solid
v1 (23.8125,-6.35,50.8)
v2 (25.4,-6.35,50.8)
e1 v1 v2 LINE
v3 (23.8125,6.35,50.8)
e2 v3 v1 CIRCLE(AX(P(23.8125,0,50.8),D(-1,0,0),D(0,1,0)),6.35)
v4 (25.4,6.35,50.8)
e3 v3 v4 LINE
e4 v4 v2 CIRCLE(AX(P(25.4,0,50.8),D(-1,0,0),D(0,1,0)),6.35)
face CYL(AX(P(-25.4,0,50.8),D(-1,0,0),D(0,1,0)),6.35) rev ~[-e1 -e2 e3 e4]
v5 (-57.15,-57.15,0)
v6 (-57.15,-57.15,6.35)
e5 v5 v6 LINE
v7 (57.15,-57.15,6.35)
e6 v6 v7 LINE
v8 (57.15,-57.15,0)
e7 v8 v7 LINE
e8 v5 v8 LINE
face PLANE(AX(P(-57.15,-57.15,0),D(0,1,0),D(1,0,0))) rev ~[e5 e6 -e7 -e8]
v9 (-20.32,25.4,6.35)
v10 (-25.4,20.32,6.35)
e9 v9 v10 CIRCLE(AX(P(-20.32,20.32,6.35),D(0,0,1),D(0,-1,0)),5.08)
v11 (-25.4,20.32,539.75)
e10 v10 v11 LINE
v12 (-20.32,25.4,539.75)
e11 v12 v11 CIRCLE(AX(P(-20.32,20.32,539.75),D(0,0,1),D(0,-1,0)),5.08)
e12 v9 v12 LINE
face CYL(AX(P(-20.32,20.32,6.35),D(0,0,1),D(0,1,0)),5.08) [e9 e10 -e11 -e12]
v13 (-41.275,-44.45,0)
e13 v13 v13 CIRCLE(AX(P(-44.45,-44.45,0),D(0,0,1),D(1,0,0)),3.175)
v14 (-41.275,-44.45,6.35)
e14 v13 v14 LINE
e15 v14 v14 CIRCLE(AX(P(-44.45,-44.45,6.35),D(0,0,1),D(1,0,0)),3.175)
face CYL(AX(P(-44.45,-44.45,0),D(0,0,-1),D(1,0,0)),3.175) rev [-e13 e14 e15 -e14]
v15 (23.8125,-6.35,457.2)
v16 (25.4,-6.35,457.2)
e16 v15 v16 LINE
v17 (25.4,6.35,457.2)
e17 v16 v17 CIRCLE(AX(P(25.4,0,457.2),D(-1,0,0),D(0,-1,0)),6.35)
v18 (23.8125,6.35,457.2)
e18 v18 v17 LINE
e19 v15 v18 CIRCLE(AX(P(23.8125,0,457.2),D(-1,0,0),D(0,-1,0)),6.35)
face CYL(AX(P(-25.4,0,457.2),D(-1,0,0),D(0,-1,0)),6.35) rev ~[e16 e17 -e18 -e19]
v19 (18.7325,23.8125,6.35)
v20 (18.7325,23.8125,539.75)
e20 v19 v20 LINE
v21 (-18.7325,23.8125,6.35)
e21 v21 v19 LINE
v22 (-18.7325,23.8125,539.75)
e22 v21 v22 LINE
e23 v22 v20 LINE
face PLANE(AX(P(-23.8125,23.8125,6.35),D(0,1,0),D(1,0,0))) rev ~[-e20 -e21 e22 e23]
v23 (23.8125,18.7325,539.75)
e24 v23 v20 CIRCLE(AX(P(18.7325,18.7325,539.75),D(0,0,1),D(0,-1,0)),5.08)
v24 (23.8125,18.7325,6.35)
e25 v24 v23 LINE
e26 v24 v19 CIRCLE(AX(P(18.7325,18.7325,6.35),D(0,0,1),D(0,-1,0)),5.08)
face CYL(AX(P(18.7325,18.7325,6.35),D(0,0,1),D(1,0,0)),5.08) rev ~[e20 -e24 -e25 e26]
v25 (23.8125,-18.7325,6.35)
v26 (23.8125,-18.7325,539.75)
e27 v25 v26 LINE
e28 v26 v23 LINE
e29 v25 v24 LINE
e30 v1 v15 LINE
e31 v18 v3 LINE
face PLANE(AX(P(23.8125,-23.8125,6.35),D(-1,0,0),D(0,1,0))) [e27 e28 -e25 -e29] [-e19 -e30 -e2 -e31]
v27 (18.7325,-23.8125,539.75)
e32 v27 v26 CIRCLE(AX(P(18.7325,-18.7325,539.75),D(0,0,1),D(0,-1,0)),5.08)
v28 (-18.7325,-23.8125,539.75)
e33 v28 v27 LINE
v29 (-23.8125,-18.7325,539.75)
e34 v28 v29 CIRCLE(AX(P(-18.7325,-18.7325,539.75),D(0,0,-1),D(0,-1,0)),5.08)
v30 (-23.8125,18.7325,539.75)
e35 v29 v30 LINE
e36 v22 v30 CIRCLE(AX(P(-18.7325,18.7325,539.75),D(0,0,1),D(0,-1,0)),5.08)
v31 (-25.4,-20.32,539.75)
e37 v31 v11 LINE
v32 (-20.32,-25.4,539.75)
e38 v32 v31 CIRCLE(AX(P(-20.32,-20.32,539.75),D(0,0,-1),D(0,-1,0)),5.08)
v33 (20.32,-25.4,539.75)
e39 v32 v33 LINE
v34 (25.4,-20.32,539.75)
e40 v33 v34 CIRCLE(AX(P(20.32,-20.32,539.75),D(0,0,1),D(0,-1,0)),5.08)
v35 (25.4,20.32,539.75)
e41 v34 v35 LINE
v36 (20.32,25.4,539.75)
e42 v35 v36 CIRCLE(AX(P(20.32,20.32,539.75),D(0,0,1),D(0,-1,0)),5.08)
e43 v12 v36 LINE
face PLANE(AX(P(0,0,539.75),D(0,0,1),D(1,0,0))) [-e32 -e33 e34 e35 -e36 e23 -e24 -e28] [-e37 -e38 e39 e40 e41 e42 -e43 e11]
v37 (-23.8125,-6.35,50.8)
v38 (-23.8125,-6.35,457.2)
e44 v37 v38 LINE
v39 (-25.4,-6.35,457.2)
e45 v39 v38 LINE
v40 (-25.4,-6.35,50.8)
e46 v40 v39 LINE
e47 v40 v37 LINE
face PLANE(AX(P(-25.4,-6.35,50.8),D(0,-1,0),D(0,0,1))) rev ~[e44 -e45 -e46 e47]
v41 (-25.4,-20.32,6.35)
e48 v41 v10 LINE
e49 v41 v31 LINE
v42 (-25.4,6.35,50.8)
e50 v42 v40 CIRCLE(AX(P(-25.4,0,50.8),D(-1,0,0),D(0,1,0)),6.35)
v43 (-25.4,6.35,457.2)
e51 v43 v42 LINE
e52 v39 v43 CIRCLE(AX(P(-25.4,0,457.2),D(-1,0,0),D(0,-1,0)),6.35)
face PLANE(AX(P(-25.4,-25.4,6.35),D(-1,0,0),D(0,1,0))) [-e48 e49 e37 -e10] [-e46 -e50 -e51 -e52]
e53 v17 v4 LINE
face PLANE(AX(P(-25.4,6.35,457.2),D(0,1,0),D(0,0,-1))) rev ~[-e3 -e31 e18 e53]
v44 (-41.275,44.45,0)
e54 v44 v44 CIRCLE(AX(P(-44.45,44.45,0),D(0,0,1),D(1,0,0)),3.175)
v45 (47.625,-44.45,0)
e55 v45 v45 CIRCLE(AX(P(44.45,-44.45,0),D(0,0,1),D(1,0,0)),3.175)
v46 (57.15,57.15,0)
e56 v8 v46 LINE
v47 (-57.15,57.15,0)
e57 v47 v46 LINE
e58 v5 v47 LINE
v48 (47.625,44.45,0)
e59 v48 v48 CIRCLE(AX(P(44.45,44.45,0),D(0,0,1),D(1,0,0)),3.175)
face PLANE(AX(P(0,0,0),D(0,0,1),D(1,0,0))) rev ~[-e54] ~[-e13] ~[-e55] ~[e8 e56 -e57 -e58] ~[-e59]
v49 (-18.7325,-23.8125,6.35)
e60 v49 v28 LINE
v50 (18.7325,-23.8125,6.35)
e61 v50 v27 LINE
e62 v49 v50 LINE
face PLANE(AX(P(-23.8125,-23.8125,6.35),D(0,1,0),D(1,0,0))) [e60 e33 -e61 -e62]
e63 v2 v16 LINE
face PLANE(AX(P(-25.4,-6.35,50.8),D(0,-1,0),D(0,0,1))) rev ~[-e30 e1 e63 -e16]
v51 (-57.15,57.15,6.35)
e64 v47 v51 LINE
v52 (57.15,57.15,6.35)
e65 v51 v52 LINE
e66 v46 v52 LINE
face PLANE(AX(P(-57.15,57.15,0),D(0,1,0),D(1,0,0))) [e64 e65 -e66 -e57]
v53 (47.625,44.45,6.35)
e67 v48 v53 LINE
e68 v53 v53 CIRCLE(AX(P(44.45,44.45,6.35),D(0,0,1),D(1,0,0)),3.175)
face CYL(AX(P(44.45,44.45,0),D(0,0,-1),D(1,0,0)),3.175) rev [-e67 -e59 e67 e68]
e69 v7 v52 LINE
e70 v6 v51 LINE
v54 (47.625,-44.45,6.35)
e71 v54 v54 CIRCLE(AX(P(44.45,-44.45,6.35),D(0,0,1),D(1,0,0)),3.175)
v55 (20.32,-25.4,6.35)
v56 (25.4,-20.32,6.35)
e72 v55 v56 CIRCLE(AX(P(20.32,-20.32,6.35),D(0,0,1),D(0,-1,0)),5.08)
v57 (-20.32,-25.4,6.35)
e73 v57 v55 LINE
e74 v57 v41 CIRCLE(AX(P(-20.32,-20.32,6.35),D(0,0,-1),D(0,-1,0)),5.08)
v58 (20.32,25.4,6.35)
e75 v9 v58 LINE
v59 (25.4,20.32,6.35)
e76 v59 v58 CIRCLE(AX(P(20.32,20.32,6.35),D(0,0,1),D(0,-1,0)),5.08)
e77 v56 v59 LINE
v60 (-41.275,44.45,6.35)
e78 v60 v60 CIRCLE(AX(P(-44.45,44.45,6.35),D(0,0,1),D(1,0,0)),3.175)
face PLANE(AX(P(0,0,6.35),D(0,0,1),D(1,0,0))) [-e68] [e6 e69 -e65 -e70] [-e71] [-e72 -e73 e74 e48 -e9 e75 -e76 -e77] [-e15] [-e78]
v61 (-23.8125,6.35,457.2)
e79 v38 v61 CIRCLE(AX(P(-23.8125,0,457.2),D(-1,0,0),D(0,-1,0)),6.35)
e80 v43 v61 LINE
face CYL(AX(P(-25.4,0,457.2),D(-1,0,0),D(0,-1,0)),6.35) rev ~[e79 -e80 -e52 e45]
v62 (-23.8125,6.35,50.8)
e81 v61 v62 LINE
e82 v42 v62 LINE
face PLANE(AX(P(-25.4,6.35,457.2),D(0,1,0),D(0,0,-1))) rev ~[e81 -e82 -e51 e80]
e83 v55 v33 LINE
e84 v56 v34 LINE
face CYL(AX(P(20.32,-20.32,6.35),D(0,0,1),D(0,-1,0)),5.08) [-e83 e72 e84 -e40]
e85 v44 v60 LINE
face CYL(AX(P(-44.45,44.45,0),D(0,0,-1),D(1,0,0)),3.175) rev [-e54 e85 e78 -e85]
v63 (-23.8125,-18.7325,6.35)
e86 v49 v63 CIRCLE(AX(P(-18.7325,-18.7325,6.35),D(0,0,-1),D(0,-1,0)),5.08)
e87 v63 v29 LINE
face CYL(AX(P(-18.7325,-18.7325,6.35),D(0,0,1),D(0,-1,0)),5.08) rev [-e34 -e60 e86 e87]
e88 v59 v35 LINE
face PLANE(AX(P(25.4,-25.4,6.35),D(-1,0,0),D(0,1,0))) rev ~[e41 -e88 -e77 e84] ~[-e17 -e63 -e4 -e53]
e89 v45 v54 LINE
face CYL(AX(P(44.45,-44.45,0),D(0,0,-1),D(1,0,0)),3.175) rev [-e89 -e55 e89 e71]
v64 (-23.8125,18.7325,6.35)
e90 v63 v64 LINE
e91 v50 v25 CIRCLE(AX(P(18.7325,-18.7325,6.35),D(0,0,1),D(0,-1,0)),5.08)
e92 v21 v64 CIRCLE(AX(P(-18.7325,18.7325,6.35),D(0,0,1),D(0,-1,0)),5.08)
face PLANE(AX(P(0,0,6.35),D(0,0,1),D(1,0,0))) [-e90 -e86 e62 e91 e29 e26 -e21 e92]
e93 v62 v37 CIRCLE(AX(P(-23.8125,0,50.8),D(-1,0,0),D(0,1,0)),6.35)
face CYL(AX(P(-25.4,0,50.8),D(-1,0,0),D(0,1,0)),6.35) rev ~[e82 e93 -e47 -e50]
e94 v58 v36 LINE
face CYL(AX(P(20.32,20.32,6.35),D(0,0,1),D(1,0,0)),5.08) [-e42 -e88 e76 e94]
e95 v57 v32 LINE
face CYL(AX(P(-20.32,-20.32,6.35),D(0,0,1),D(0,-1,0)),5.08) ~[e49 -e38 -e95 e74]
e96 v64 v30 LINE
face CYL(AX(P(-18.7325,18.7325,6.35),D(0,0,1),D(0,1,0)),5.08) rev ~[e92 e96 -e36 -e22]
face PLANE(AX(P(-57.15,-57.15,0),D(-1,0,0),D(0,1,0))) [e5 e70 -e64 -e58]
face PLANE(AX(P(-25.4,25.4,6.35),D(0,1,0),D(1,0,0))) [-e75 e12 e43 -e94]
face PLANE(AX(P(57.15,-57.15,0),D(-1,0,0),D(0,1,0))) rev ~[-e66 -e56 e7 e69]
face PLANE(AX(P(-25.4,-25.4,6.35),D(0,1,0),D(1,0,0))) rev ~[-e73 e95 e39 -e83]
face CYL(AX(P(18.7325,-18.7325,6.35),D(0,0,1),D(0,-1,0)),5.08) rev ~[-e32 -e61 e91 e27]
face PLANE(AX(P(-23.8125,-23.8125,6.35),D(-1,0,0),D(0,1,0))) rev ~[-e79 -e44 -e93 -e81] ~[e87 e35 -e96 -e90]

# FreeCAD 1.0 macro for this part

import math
import FreeCAD as App
import Part
import Sketcher

V = App.Vector
Q = App.Units.Quantity


def edges_at(feature, points):
    """Names of the edges that pass closest to the given points."""
    edges = feature.Shape.Edges
    near = lambda p: min(range(len(edges)), key=lambda i: edges[i].distToShape(Part.Vertex(*p))[0])
    return sorted({f"Edge{near(p) + 1}" for p in points})

doc = App.newDocument("Part")
params = doc.addObject("Spreadsheet::Sheet", "Params")
for row, (alias, value) in enumerate([
    ("sketch1_diameter", "0.25 in"),
    ("sketch1_width", "4.5 in"),
    ("pad1_length", "0.25 in"),
    ("sketch2_width", "2 in"),
    ("sketch2_width2", "1.875 in"),
    ("pad2_length", "21 in"),
    ("fillet_radius", "0.2 in"),
    ("sketch3_height", "16 in"),
    ("sketch3_radius", "0.25 in"),
], start=1):
    params.set(f"A{row}", alias)
    params.set(f"B{row}", "=" + value)
    params.setAlias(f"B{row}", alias)

body = doc.addObject("PartDesign::Body", "Body")

# Sketch on XY plane
sketch1 = body.newObject("Sketcher::SketchObject", "Sketch")
sketch1.AttachmentSupport = (doc.getObject("XY_Plane"), [""])
sketch1.MapMode = "FlatFace"
sketch1.addGeometry([
    Part.LineSegment(V(-57.15, 57.15, 0), V(-57.15, -57.15, 0)),  # 0
    Part.LineSegment(V(-57.15, -57.15, 0), V(57.15, -57.15, 0)),  # 1
    Part.LineSegment(V(57.15, -57.15, 0), V(57.15, 57.15, 0)),  # 2
    Part.LineSegment(V(57.15, 57.15, 0), V(-57.15, 57.15, 0)),  # 3
    Part.Circle(V(-44.45, -44.45, 0), V(0, 0, 1), 3.175),  # 4
    Part.Circle(V(44.45, -44.45, 0), V(0, 0, 1), 3.175),  # 5
    Part.Circle(V(-44.45, 44.45, 0), V(0, 0, 1), 3.175),  # 6
    Part.Circle(V(44.45, 44.45, 0), V(0, 0, 1), 3.175),  # 7
], False)
sketch1.addConstraint([
    Sketcher.Constraint("Coincident", 0, 2, 1, 1),
    Sketcher.Constraint("Coincident", 1, 2, 2, 1),
    Sketcher.Constraint("Coincident", 2, 2, 3, 1),
    Sketcher.Constraint("Coincident", 3, 2, 0, 1),
    Sketcher.Constraint("Vertical", 0),
    Sketcher.Constraint("Horizontal", 1),
    Sketcher.Constraint("Vertical", 2),
    Sketcher.Constraint("Horizontal", 3),
    Sketcher.Constraint("Equal", 4, 5),
    Sketcher.Constraint("Equal", 5, 6),
    Sketcher.Constraint("Equal", 6, 7),
    Sketcher.Constraint("Symmetric", 5, 3, 6, 3, -1, 1),
    Sketcher.Constraint("Symmetric", 4, 3, 7, 3, -1, 1),
    Sketcher.Constraint("Symmetric", 0, 2, 2, 2, -1, 1),
    Sketcher.Constraint("Symmetric", 4, 3, 5, 3, -2),
    Sketcher.Constraint("Equal", 3, 0),
    Sketcher.Constraint("Diameter", 4, Q("0.25 in")),
    Sketcher.Constraint("DistanceX", 1, 1, 1, 2, Q("4.5 in")),
    Sketcher.Constraint("DistanceX", 0, 2, 5, 3, Q("4 in")),
    Sketcher.Constraint("DistanceY", 0, 2, 6, 3, Q("4 in")),
])
sketch1.setExpression("Constraints[16]", "Params.sketch1_diameter")
sketch1.setExpression("Constraints[17]", "Params.sketch1_width")
pad1 = body.newObject("PartDesign::Pad", "Pad")
pad1.Profile = sketch1
pad1.setExpression("Length", "Params.pad1_length")

# Sketch on XY plane
sketch2 = body.newObject("Sketcher::SketchObject", "Sketch001")
sketch2.AttachmentSupport = (doc.getObject("XY_Plane"), [""])
sketch2.MapMode = "FlatFace"
sketch2.AttachmentOffset = App.Placement(V(0, 0, 0.25 * 25.4), App.Rotation())
sketch2.addGeometry([
    Part.LineSegment(V(-25.4, 25.4, 0), V(-25.4, -25.4, 0)),  # 0
    Part.LineSegment(V(-25.4, -25.4, 0), V(25.4, -25.4, 0)),  # 1
    Part.LineSegment(V(25.4, -25.4, 0), V(25.4, 25.4, 0)),  # 2
    Part.LineSegment(V(25.4, 25.4, 0), V(-25.4, 25.4, 0)),  # 3
    Part.LineSegment(V(23.8125, -23.8125, 0), V(-23.8125, -23.8125, 0)),  # 4
    Part.LineSegment(V(-23.8125, -23.8125, 0), V(-23.8125, 23.8125, 0)),  # 5
    Part.LineSegment(V(-23.8125, 23.8125, 0), V(23.8125, 23.8125, 0)),  # 6
    Part.LineSegment(V(23.8125, 23.8125, 0), V(23.8125, -23.8125, 0)),  # 7
], False)
sketch2.addConstraint([
    Sketcher.Constraint("Coincident", 0, 2, 1, 1),
    Sketcher.Constraint("Coincident", 1, 2, 2, 1),
    Sketcher.Constraint("Coincident", 2, 2, 3, 1),
    Sketcher.Constraint("Coincident", 3, 2, 0, 1),
    Sketcher.Constraint("Coincident", 4, 2, 5, 1),
    Sketcher.Constraint("Coincident", 5, 2, 6, 1),
    Sketcher.Constraint("Coincident", 6, 2, 7, 1),
    Sketcher.Constraint("Coincident", 7, 2, 4, 1),
    Sketcher.Constraint("Vertical", 0),
    Sketcher.Constraint("Horizontal", 1),
    Sketcher.Constraint("Vertical", 2),
    Sketcher.Constraint("Horizontal", 3),
    Sketcher.Constraint("Horizontal", 4),
    Sketcher.Constraint("Vertical", 5),
    Sketcher.Constraint("Horizontal", 6),
    Sketcher.Constraint("Vertical", 7),
    Sketcher.Constraint("Symmetric", 0, 2, 2, 2, -1, 1),
    Sketcher.Constraint("Symmetric", 4, 2, 6, 2, -1, 1),
    Sketcher.Constraint("Equal", 3, 0),
    Sketcher.Constraint("Equal", 6, 5),
    Sketcher.Constraint("DistanceX", 1, 1, 1, 2, Q("2 in")),
    Sketcher.Constraint("DistanceX", 4, 2, 4, 1, Q("1.875 in")),
])
sketch2.setExpression("Constraints[20]", "Params.sketch2_width")
sketch2.setExpression("Constraints[21]", "Params.sketch2_width2")
pad2 = body.newObject("PartDesign::Pad", "Pad001")
pad2.Profile = sketch2
pad2.setExpression("Length", "Params.pad2_length")
doc.recompute()

fillet = body.newObject("PartDesign::Fillet", "Fillet")
fillet.Base = (pad2, edges_at(pad2, [
    (25.4, 25.4, 273.05),
    (25.4, -25.4, 273.05),
    (-25.4, 25.4, 273.05),
    (-25.4, -25.4, 273.05),
    (-23.812, -23.812, 273.05),
    (23.812, 23.812, 273.05),
    (-23.812, 23.812, 273.05),
    (23.812, -23.812, 273.05),
]))
fillet.setExpression("Radius", "Params.fillet_radius")

# Sketch on YZ plane
sketch3 = body.newObject("Sketcher::SketchObject", "Sketch002")
sketch3.AttachmentSupport = (doc.getObject("YZ_Plane"), [""])
sketch3.MapMode = "FlatFace"
sketch3.AttachmentOffset = App.Placement(V(0, 0, -1 * 25.4), App.Rotation())
sketch3.addGeometry([
    Part.ArcOfCircle(Part.Circle(V(0, 50.8, 0), V(0, 0, 1), 6.35), math.radians(180), math.radians(360)),
    Part.LineSegment(V(-6.35, 50.8, 0), V(-6.35, 457.2, 0)),
    Part.ArcOfCircle(Part.Circle(V(0, 457.2, 0), V(0, 0, 1), 6.35), math.radians(0), math.radians(180)),
    Part.LineSegment(V(6.35, 457.2, 0), V(6.35, 50.8, 0)),
], False)
sketch3.addConstraint([
    Sketcher.Constraint("Tangent", 0, 1, 1, 1),
    Sketcher.Constraint("Tangent", 1, 2, 2, 2),
    Sketcher.Constraint("Tangent", 2, 1, 3, 1),
    Sketcher.Constraint("Tangent", 3, 2, 0, 2),
    Sketcher.Constraint("Vertical", 1),
    Sketcher.Constraint("Vertical", 3),
    Sketcher.Constraint("PointOnObject", 0, 3, -2),
    Sketcher.Constraint("DistanceY", 1, 1, 1, 2, Q("16 in")),
    Sketcher.Constraint("Radius", 0, Q("0.25 in")),
    Sketcher.Constraint("DistanceY", -1, 1, 0, 3, Q("2 in")),
])
sketch3.setExpression("Constraints[7]", "Params.sketch3_height")
sketch3.setExpression("Constraints[8]", "Params.sketch3_radius")
pocket1 = body.newObject("PartDesign::Pocket", "Pocket")
pocket1.Profile = sketch3
pocket1.Type = "ThroughAll"
pocket1.Reversed = True

doc.recompute()
